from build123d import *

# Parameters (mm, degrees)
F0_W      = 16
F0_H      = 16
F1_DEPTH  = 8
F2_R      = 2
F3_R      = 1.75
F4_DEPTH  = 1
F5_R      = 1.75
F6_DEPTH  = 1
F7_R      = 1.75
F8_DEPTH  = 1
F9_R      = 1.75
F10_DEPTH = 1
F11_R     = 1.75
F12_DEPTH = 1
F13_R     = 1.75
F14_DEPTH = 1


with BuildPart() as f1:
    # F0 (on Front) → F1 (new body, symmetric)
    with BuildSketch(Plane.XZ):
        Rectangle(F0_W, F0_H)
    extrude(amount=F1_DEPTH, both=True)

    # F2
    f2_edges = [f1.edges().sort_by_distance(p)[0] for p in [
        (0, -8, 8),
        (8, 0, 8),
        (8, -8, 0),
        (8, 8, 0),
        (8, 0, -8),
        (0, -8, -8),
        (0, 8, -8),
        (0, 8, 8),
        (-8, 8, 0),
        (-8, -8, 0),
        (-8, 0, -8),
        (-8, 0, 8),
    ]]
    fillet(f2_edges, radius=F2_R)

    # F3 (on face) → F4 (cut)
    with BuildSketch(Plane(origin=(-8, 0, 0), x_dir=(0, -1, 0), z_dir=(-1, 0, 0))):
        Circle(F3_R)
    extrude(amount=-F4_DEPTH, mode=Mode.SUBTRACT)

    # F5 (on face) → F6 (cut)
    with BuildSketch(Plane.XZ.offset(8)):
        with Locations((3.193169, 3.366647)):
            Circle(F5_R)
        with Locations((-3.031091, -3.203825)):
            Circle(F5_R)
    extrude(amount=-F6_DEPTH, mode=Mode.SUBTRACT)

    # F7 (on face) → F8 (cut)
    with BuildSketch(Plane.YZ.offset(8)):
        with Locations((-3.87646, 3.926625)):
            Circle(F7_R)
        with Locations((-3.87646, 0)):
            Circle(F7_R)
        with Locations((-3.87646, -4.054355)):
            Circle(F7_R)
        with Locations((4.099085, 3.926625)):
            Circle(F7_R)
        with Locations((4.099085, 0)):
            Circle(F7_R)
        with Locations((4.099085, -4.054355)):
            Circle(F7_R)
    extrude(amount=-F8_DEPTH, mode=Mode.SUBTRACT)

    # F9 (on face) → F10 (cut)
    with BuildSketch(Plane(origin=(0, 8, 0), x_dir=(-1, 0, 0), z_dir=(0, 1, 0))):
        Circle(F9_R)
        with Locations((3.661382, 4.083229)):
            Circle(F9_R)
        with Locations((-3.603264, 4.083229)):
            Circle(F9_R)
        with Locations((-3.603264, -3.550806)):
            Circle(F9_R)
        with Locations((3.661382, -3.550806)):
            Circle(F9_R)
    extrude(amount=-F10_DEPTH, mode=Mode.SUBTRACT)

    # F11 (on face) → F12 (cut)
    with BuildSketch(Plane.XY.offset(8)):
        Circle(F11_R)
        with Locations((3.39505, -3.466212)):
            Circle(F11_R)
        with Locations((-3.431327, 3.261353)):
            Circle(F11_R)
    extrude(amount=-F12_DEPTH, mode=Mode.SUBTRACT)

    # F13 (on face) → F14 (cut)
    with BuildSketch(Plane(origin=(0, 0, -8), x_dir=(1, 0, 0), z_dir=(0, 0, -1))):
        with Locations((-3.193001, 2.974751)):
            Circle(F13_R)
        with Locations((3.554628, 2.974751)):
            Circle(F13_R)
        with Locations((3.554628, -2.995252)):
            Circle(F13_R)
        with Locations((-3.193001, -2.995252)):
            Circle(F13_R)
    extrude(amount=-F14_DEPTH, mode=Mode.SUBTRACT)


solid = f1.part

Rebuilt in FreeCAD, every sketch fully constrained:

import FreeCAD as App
import Part
import Sketcher

V = App.Vector

doc = App.newDocument("Part")
body = doc.addObject("PartDesign::Body", "Body")

sketch1 = doc.addObject("Sketcher::SketchObject", "Sketch")
body.addObject(sketch1)
sketch1.AttachmentSupport = (doc.XZ_Plane, [""])
sketch1.MapMode = "FlatFace"
sketch1.addGeometry(Part.LineSegment(V(-8, 8, 0), V(-8, -8, 0)), False)
sketch1.addGeometry(Part.LineSegment(V(-8, -8, 0), V(8, -8, 0)), False)
sketch1.addGeometry(Part.LineSegment(V(8, -8, 0), V(8, 8, 0)), False)
sketch1.addGeometry(Part.LineSegment(V(8, 8, 0), V(-8, 8, 0)), False)
sketch1.addConstraint(Sketcher.Constraint("Coincident", 0, 2, 1, 1))
sketch1.addConstraint(Sketcher.Constraint("Coincident", 1, 2, 2, 1))
sketch1.addConstraint(Sketcher.Constraint("Coincident", 2, 2, 3, 1))
sketch1.addConstraint(Sketcher.Constraint("Coincident", 3, 2, 0, 1))
sketch1.addConstraint(Sketcher.Constraint("Vertical", 0))
sketch1.addConstraint(Sketcher.Constraint("Horizontal", 1))
sketch1.addConstraint(Sketcher.Constraint("Vertical", 2))
sketch1.addConstraint(Sketcher.Constraint("Horizontal", 3))
sketch1.addConstraint(Sketcher.Constraint("Symmetric", 0, 2, 2, 2, -1, 1))
sketch1.addConstraint(Sketcher.Constraint("Equal", 3, 0))
sketch1.addConstraint(Sketcher.Constraint("DistanceX", 1, 1, 1, 2, 16.0))
pad1 = doc.addObject("PartDesign::Pad", "Pad")
body.addObject(pad1)
pad1.Profile = sketch1
pad1.Length = 16
pad1.Midplane = True
doc.recompute()

fillet = doc.addObject("PartDesign::Fillet", "Fillet")
body.addObject(fillet)
fillet.Base = (pad1, ["Edge1"])
fillet.UseAllEdges = True
fillet.Radius = 2

sketch2 = doc.addObject("Sketcher::SketchObject", "Sketch001")
body.addObject(sketch2)
sketch2.AttachmentSupport = (doc.YZ_Plane, [""])
sketch2.MapMode = "FlatFace"
sketch2.AttachmentOffset = App.Placement(V(0, 0, -8), App.Rotation())
sketch2.addGeometry(Part.Circle(V(0, 0, 0), V(0, 0, 1), 1.8), False)
sketch2.addConstraint(Sketcher.Constraint("Coincident", 0, 3, -1, 1))
sketch2.addConstraint(Sketcher.Constraint("Diameter", 0, 3.5))
pocket1 = doc.addObject("PartDesign::Pocket", "Pocket")
body.addObject(pocket1)
pocket1.Profile = sketch2
pocket1.Length = 1
pocket1.Reversed = True

sketch3 = doc.addObject("Sketcher::SketchObject", "Sketch002")
body.addObject(sketch3)
sketch3.AttachmentSupport = (doc.XZ_Plane, [""])
sketch3.MapMode = "FlatFace"
sketch3.AttachmentOffset = App.Placement(V(0, 0, 8), App.Rotation())
sketch3.addGeometry(Part.Circle(V(3.2, 3.4, 0), V(0, 0, 1), 1.8), False)
sketch3.addGeometry(Part.Circle(V(-3, -3.2, 0), V(0, 0, 1), 1.8), False)
sketch3.addConstraint(Sketcher.Constraint("Equal", 0, 1))
sketch3.addConstraint(Sketcher.Constraint("Diameter", 0, 3.5))
sketch3.addConstraint(Sketcher.Constraint("DistanceX", -1, 1, 0, 3, 3.193169))
sketch3.addConstraint(Sketcher.Constraint("DistanceX", 1, 3, -1, 1, 3.031091))
sketch3.addConstraint(Sketcher.Constraint("DistanceY", -1, 1, 0, 3, 3.366647))
sketch3.addConstraint(Sketcher.Constraint("DistanceY", 1, 3, -1, 1, 3.203825))
pocket2 = doc.addObject("PartDesign::Pocket", "Pocket001")
body.addObject(pocket2)
pocket2.Profile = sketch3
pocket2.Length = 1

sketch4 = doc.addObject("Sketcher::SketchObject", "Sketch003")
body.addObject(sketch4)
sketch4.AttachmentSupport = (doc.YZ_Plane, [""])
sketch4.MapMode = "FlatFace"
sketch4.AttachmentOffset = App.Placement(V(0, 0, 8), App.Rotation())
sketch4.addGeometry(Part.Circle(V(-3.9, 3.9, 0), V(0, 0, 1), 1.8), False)
sketch4.addGeometry(Part.Circle(V(-3.9, 0, 0), V(0, 0, 1), 1.8), False)
sketch4.addGeometry(Part.Circle(V(-3.9, -4.1, 0), V(0, 0, 1), 1.8), False)
sketch4.addGeometry(Part.Circle(V(4.1, 3.9, 0), V(0, 0, 1), 1.8), False)
sketch4.addGeometry(Part.Circle(V(4.1, 0, 0), V(0, 0, 1), 1.8), False)
sketch4.addGeometry(Part.Circle(V(4.1, -4.1, 0), V(0, 0, 1), 1.8), False)
sketch4.addConstraint(Sketcher.Constraint("Equal", 0, 1))
sketch4.addConstraint(Sketcher.Constraint("Equal", 1, 2))
sketch4.addConstraint(Sketcher.Constraint("Equal", 2, 3))
sketch4.addConstraint(Sketcher.Constraint("Equal", 3, 4))
sketch4.addConstraint(Sketcher.Constraint("Equal", 4, 5))
sketch4.addConstraint(Sketcher.Constraint("PointOnObject", 1, 3, -1))
sketch4.addConstraint(Sketcher.Constraint("PointOnObject", 4, 3, -1))
sketch4.addConstraint(Sketcher.Constraint("Horizontal", 0, 3, 3, 3))
sketch4.addConstraint(Sketcher.Constraint("Horizontal", 2, 3, 5, 3))
sketch4.addConstraint(Sketcher.Constraint("Vertical", 0, 3, 1, 3))
sketch4.addConstraint(Sketcher.Constraint("Vertical", 1, 3, 2, 3))
sketch4.addConstraint(Sketcher.Constraint("Vertical", 3, 3, 4, 3))
sketch4.addConstraint(Sketcher.Constraint("Vertical", 4, 3, 5, 3))
sketch4.addConstraint(Sketcher.Constraint("Diameter", 0, 3.5))
sketch4.addConstraint(Sketcher.Constraint("DistanceX", 0, 3, -1, 1, 3.87646))
sketch4.addConstraint(Sketcher.Constraint("DistanceY", 2, 3, 0, 3, 7.98098))
sketch4.addConstraint(Sketcher.Constraint("DistanceY", -1, 1, 0, 3, 3.926625))
sketch4.addConstraint(Sketcher.Constraint("DistanceX", -1, 1, 3, 3, 4.099085))
pocket3 = doc.addObject("PartDesign::Pocket", "Pocket002")
body.addObject(pocket3)
pocket3.Profile = sketch4
pocket3.Length = 1

sketch5 = doc.addObject("Sketcher::SketchObject", "Sketch004")
body.addObject(sketch5)
sketch5.AttachmentSupport = (doc.XZ_Plane, [""])
sketch5.MapMode = "FlatFace"
sketch5.AttachmentOffset = App.Placement(V(0, 0, -8), App.Rotation())
sketch5.addGeometry(Part.Circle(V(0, 0, 0), V(0, 0, 1), 1.8), False)
sketch5.addGeometry(Part.Circle(V(-3.7, 4.1, 0), V(0, 0, 1), 1.8), False)
sketch5.addGeometry(Part.Circle(V(3.6, 4.1, 0), V(0, 0, 1), 1.8), False)
sketch5.addGeometry(Part.Circle(V(3.6, -3.6, 0), V(0, 0, 1), 1.8), False)
sketch5.addGeometry(Part.Circle(V(-3.7, -3.6, 0), V(0, 0, 1), 1.8), False)
sketch5.addConstraint(Sketcher.Constraint("Coincident", 0, 3, -1, 1))
sketch5.addConstraint(Sketcher.Constraint("Equal", 0, 1))
sketch5.addConstraint(Sketcher.Constraint("Equal", 1, 2))
sketch5.addConstraint(Sketcher.Constraint("Equal", 2, 3))
sketch5.addConstraint(Sketcher.Constraint("Equal", 3, 4))
sketch5.addConstraint(Sketcher.Constraint("Horizontal", 1, 3, 2, 3))
sketch5.addConstraint(Sketcher.Constraint("Horizontal", 3, 3, 4, 3))
sketch5.addConstraint(Sketcher.Constraint("Vertical", 2, 3, 3, 3))
sketch5.addConstraint(Sketcher.Constraint("Vertical", 1, 3, 4, 3))
sketch5.addConstraint(Sketcher.Constraint("Diameter", 0, 3.5))
sketch5.addConstraint(Sketcher.Constraint("DistanceY", -1, 1, 1, 3, 4.083229))
sketch5.addConstraint(Sketcher.Constraint("DistanceX", 1, 3, -1, 1, 3.661382))
sketch5.addConstraint(Sketcher.Constraint("DistanceX", -1, 1, 2, 3, 3.603264))
sketch5.addConstraint(Sketcher.Constraint("DistanceY", 3, 3, -1, 1, 3.550806))
pocket4 = doc.addObject("PartDesign::Pocket", "Pocket003")
body.addObject(pocket4)
pocket4.Profile = sketch5
pocket4.Length = 1
pocket4.Reversed = True

sketch6 = doc.addObject("Sketcher::SketchObject", "Sketch005")
body.addObject(sketch6)
sketch6.AttachmentSupport = (doc.XY_Plane, [""])
sketch6.MapMode = "FlatFace"
sketch6.AttachmentOffset = App.Placement(V(0, 0, 8), App.Rotation())
sketch6.addGeometry(Part.Circle(V(0, 0, 0), V(0, 0, 1), 1.8), False)
sketch6.addGeometry(Part.Circle(V(3.4, -3.5, 0), V(0, 0, 1), 1.8), False)
sketch6.addGeometry(Part.Circle(V(-3.4, 3.3, 0), V(0, 0, 1), 1.8), False)
sketch6.addConstraint(Sketcher.Constraint("Coincident", 0, 3, -1, 1))
sketch6.addConstraint(Sketcher.Constraint("Equal", 0, 1))
sketch6.addConstraint(Sketcher.Constraint("Equal", 1, 2))
sketch6.addConstraint(Sketcher.Constraint("Diameter", 0, 3.5))
sketch6.addConstraint(Sketcher.Constraint("DistanceX", -1, 1, 1, 3, 3.39505))
sketch6.addConstraint(Sketcher.Constraint("DistanceY", 1, 3, -1, 1, 3.466212))
sketch6.addConstraint(Sketcher.Constraint("DistanceX", 2, 3, -1, 1, 3.431327))
sketch6.addConstraint(Sketcher.Constraint("DistanceY", -1, 1, 2, 3, 3.261353))
pocket5 = doc.addObject("PartDesign::Pocket", "Pocket004")
body.addObject(pocket5)
pocket5.Profile = sketch6
pocket5.Length = 1

sketch7 = doc.addObject("Sketcher::SketchObject", "Sketch006")
body.addObject(sketch7)
sketch7.AttachmentSupport = (doc.XY_Plane, [""])
sketch7.MapMode = "FlatFace"
sketch7.AttachmentOffset = App.Placement(V(0, 0, -8), App.Rotation())
sketch7.addGeometry(Part.Circle(V(-3.2, -3, 0), V(0, 0, 1), 1.8), False)
sketch7.addGeometry(Part.Circle(V(3.6, -3, 0), V(0, 0, 1), 1.8), False)
sketch7.addGeometry(Part.Circle(V(3.6, 3, 0), V(0, 0, 1), 1.8), False)
sketch7.addGeometry(Part.Circle(V(-3.2, 3, 0), V(0, 0, 1), 1.8), False)
sketch7.addConstraint(Sketcher.Constraint("Equal", 0, 1))
sketch7.addConstraint(Sketcher.Constraint("Equal", 1, 2))
sketch7.addConstraint(Sketcher.Constraint("Equal", 2, 3))
sketch7.addConstraint(Sketcher.Constraint("Horizontal", 0, 3, 1, 3))
sketch7.addConstraint(Sketcher.Constraint("Horizontal", 2, 3, 3, 3))
sketch7.addConstraint(Sketcher.Constraint("Vertical", 1, 3, 2, 3))
sketch7.addConstraint(Sketcher.Constraint("Vertical", 0, 3, 3, 3))
sketch7.addConstraint(Sketcher.Constraint("Diameter", 0, 3.5))
sketch7.addConstraint(Sketcher.Constraint("DistanceX", 0, 3, -1, 1, 3.193001))
sketch7.addConstraint(Sketcher.Constraint("DistanceY", 0, 3, -1, 1, 2.974751))
sketch7.addConstraint(Sketcher.Constraint("DistanceX", -1, 1, 1, 3, 3.554628))
sketch7.addConstraint(Sketcher.Constraint("DistanceY", -1, 1, 2, 3, 2.995252))
pocket6 = doc.addObject("PartDesign::Pocket", "Pocket005")
body.addObject(pocket6)
pocket6.Profile = sketch7
pocket6.Length = 1
pocket6.Reversed = True

doc.recompute()
